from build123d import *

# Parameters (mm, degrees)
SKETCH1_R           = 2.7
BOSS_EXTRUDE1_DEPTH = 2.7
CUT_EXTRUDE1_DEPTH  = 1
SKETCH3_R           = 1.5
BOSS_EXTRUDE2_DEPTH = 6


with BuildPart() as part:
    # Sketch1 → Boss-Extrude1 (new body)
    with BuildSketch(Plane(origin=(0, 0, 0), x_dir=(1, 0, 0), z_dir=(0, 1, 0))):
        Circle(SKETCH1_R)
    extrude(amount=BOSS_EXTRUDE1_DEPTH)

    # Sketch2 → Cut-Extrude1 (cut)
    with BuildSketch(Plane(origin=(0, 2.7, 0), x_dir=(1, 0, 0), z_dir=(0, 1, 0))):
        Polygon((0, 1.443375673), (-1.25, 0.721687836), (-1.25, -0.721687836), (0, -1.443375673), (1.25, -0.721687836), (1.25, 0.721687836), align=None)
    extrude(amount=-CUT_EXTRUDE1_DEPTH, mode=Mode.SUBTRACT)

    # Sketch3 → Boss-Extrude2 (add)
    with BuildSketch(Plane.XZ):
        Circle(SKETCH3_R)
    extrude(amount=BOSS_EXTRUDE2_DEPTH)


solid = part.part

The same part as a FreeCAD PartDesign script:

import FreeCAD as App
import Part
import Sketcher

V = App.Vector
Q = App.Units.Quantity


def add_polygon(sketch, points):
    """Adds a closed chain of lines whose ends are joined by coincident constraints."""
    first, n = sketch.GeometryCount, len(points)
    for a, b in zip(points, points[1:] + points[:1]):
        sketch.addGeometry(Part.LineSegment(App.Vector(*a, 0), App.Vector(*b, 0)), False)
    for i in range(n):
        sketch.addConstraint(Sketcher.Constraint("Coincident", first + i, 2, first + (i + 1) % n, 1))

doc = App.newDocument("Part")
body = doc.addObject("PartDesign::Body", "Body")

sketch1 = doc.addObject("Sketcher::SketchObject", "Sketch")
body.addObject(sketch1)
sketch1.AttachmentSupport = (doc.XZ_Plane, [""])
sketch1.MapMode = "FlatFace"
sketch1.addGeometry(Part.Circle(V(0, 0, 0), V(0, 0, 1), 2.7), False)
sketch1.addConstraint(Sketcher.Constraint("Coincident", 0, 3, -1, 1))
sketch1.addConstraint(Sketcher.Constraint("Diameter", 0, 5.4))
pad1 = doc.addObject("PartDesign::Pad", "Pad")
body.addObject(pad1)
pad1.Profile = sketch1
pad1.Length = 2.7
pad1.Reversed = True

sketch2 = doc.addObject("Sketcher::SketchObject", "Sketch001")
body.addObject(sketch2)
sketch2.AttachmentSupport = (doc.XZ_Plane, [""])
sketch2.MapMode = "FlatFace"
sketch2.AttachmentOffset = App.Placement(V(0, 0, -2.7), App.Rotation())
add_polygon(sketch2, [(0, -1.4), (-1.2, -0.7), (-1.2, 0.7), (0, 1.4), (1.2, 0.7), (1.2, -0.7)])
sketch2.addConstraint(Sketcher.Constraint("Vertical", 1))
sketch2.addConstraint(Sketcher.Constraint("Vertical", 4))
sketch2.addConstraint(Sketcher.Constraint("Symmetric", 0, 2, 3, 2, -1, 1))
sketch2.addConstraint(Sketcher.Constraint("Symmetric", 2, 2, 5, 2, -1, 1))
sketch2.addConstraint(Sketcher.Constraint("PointOnObject", 2, 2, -2))
sketch2.addConstraint(Sketcher.Constraint("Parallel", 2, 5))
sketch2.addConstraint(Sketcher.Constraint("Horizontal", 1, 2, 3, 2))
sketch2.addConstraint(Sketcher.Constraint("Angle", 0, Q("150 deg")))
sketch2.addConstraint(Sketcher.Constraint("DistanceX", 1, 2, 3, 2, 2.5))
sketch2.addConstraint(Sketcher.Constraint("DistanceY", 1, 1, 1, 2, 1.443376))
pocket1 = doc.addObject("PartDesign::Pocket", "Pocket")
body.addObject(pocket1)
pocket1.Profile = sketch2
pocket1.Length = 1
pocket1.Reversed = True

sketch3 = doc.addObject("Sketcher::SketchObject", "Sketch002")
body.addObject(sketch3)
sketch3.AttachmentSupport = (doc.XZ_Plane, [""])
sketch3.MapMode = "FlatFace"
sketch3.addGeometry(Part.Circle(V(0, 0, 0), V(0, 0, 1), 1.5), False)
sketch3.addConstraint(Sketcher.Constraint("Coincident", 0, 3, -1, 1))
sketch3.addConstraint(Sketcher.Constraint("Diameter", 0, 3.0))
pad2 = doc.addObject("PartDesign::Pad", "Pad001")
body.addObject(pad2)
pad2.Profile = sketch3
pad2.Length = 6

doc.recompute()
